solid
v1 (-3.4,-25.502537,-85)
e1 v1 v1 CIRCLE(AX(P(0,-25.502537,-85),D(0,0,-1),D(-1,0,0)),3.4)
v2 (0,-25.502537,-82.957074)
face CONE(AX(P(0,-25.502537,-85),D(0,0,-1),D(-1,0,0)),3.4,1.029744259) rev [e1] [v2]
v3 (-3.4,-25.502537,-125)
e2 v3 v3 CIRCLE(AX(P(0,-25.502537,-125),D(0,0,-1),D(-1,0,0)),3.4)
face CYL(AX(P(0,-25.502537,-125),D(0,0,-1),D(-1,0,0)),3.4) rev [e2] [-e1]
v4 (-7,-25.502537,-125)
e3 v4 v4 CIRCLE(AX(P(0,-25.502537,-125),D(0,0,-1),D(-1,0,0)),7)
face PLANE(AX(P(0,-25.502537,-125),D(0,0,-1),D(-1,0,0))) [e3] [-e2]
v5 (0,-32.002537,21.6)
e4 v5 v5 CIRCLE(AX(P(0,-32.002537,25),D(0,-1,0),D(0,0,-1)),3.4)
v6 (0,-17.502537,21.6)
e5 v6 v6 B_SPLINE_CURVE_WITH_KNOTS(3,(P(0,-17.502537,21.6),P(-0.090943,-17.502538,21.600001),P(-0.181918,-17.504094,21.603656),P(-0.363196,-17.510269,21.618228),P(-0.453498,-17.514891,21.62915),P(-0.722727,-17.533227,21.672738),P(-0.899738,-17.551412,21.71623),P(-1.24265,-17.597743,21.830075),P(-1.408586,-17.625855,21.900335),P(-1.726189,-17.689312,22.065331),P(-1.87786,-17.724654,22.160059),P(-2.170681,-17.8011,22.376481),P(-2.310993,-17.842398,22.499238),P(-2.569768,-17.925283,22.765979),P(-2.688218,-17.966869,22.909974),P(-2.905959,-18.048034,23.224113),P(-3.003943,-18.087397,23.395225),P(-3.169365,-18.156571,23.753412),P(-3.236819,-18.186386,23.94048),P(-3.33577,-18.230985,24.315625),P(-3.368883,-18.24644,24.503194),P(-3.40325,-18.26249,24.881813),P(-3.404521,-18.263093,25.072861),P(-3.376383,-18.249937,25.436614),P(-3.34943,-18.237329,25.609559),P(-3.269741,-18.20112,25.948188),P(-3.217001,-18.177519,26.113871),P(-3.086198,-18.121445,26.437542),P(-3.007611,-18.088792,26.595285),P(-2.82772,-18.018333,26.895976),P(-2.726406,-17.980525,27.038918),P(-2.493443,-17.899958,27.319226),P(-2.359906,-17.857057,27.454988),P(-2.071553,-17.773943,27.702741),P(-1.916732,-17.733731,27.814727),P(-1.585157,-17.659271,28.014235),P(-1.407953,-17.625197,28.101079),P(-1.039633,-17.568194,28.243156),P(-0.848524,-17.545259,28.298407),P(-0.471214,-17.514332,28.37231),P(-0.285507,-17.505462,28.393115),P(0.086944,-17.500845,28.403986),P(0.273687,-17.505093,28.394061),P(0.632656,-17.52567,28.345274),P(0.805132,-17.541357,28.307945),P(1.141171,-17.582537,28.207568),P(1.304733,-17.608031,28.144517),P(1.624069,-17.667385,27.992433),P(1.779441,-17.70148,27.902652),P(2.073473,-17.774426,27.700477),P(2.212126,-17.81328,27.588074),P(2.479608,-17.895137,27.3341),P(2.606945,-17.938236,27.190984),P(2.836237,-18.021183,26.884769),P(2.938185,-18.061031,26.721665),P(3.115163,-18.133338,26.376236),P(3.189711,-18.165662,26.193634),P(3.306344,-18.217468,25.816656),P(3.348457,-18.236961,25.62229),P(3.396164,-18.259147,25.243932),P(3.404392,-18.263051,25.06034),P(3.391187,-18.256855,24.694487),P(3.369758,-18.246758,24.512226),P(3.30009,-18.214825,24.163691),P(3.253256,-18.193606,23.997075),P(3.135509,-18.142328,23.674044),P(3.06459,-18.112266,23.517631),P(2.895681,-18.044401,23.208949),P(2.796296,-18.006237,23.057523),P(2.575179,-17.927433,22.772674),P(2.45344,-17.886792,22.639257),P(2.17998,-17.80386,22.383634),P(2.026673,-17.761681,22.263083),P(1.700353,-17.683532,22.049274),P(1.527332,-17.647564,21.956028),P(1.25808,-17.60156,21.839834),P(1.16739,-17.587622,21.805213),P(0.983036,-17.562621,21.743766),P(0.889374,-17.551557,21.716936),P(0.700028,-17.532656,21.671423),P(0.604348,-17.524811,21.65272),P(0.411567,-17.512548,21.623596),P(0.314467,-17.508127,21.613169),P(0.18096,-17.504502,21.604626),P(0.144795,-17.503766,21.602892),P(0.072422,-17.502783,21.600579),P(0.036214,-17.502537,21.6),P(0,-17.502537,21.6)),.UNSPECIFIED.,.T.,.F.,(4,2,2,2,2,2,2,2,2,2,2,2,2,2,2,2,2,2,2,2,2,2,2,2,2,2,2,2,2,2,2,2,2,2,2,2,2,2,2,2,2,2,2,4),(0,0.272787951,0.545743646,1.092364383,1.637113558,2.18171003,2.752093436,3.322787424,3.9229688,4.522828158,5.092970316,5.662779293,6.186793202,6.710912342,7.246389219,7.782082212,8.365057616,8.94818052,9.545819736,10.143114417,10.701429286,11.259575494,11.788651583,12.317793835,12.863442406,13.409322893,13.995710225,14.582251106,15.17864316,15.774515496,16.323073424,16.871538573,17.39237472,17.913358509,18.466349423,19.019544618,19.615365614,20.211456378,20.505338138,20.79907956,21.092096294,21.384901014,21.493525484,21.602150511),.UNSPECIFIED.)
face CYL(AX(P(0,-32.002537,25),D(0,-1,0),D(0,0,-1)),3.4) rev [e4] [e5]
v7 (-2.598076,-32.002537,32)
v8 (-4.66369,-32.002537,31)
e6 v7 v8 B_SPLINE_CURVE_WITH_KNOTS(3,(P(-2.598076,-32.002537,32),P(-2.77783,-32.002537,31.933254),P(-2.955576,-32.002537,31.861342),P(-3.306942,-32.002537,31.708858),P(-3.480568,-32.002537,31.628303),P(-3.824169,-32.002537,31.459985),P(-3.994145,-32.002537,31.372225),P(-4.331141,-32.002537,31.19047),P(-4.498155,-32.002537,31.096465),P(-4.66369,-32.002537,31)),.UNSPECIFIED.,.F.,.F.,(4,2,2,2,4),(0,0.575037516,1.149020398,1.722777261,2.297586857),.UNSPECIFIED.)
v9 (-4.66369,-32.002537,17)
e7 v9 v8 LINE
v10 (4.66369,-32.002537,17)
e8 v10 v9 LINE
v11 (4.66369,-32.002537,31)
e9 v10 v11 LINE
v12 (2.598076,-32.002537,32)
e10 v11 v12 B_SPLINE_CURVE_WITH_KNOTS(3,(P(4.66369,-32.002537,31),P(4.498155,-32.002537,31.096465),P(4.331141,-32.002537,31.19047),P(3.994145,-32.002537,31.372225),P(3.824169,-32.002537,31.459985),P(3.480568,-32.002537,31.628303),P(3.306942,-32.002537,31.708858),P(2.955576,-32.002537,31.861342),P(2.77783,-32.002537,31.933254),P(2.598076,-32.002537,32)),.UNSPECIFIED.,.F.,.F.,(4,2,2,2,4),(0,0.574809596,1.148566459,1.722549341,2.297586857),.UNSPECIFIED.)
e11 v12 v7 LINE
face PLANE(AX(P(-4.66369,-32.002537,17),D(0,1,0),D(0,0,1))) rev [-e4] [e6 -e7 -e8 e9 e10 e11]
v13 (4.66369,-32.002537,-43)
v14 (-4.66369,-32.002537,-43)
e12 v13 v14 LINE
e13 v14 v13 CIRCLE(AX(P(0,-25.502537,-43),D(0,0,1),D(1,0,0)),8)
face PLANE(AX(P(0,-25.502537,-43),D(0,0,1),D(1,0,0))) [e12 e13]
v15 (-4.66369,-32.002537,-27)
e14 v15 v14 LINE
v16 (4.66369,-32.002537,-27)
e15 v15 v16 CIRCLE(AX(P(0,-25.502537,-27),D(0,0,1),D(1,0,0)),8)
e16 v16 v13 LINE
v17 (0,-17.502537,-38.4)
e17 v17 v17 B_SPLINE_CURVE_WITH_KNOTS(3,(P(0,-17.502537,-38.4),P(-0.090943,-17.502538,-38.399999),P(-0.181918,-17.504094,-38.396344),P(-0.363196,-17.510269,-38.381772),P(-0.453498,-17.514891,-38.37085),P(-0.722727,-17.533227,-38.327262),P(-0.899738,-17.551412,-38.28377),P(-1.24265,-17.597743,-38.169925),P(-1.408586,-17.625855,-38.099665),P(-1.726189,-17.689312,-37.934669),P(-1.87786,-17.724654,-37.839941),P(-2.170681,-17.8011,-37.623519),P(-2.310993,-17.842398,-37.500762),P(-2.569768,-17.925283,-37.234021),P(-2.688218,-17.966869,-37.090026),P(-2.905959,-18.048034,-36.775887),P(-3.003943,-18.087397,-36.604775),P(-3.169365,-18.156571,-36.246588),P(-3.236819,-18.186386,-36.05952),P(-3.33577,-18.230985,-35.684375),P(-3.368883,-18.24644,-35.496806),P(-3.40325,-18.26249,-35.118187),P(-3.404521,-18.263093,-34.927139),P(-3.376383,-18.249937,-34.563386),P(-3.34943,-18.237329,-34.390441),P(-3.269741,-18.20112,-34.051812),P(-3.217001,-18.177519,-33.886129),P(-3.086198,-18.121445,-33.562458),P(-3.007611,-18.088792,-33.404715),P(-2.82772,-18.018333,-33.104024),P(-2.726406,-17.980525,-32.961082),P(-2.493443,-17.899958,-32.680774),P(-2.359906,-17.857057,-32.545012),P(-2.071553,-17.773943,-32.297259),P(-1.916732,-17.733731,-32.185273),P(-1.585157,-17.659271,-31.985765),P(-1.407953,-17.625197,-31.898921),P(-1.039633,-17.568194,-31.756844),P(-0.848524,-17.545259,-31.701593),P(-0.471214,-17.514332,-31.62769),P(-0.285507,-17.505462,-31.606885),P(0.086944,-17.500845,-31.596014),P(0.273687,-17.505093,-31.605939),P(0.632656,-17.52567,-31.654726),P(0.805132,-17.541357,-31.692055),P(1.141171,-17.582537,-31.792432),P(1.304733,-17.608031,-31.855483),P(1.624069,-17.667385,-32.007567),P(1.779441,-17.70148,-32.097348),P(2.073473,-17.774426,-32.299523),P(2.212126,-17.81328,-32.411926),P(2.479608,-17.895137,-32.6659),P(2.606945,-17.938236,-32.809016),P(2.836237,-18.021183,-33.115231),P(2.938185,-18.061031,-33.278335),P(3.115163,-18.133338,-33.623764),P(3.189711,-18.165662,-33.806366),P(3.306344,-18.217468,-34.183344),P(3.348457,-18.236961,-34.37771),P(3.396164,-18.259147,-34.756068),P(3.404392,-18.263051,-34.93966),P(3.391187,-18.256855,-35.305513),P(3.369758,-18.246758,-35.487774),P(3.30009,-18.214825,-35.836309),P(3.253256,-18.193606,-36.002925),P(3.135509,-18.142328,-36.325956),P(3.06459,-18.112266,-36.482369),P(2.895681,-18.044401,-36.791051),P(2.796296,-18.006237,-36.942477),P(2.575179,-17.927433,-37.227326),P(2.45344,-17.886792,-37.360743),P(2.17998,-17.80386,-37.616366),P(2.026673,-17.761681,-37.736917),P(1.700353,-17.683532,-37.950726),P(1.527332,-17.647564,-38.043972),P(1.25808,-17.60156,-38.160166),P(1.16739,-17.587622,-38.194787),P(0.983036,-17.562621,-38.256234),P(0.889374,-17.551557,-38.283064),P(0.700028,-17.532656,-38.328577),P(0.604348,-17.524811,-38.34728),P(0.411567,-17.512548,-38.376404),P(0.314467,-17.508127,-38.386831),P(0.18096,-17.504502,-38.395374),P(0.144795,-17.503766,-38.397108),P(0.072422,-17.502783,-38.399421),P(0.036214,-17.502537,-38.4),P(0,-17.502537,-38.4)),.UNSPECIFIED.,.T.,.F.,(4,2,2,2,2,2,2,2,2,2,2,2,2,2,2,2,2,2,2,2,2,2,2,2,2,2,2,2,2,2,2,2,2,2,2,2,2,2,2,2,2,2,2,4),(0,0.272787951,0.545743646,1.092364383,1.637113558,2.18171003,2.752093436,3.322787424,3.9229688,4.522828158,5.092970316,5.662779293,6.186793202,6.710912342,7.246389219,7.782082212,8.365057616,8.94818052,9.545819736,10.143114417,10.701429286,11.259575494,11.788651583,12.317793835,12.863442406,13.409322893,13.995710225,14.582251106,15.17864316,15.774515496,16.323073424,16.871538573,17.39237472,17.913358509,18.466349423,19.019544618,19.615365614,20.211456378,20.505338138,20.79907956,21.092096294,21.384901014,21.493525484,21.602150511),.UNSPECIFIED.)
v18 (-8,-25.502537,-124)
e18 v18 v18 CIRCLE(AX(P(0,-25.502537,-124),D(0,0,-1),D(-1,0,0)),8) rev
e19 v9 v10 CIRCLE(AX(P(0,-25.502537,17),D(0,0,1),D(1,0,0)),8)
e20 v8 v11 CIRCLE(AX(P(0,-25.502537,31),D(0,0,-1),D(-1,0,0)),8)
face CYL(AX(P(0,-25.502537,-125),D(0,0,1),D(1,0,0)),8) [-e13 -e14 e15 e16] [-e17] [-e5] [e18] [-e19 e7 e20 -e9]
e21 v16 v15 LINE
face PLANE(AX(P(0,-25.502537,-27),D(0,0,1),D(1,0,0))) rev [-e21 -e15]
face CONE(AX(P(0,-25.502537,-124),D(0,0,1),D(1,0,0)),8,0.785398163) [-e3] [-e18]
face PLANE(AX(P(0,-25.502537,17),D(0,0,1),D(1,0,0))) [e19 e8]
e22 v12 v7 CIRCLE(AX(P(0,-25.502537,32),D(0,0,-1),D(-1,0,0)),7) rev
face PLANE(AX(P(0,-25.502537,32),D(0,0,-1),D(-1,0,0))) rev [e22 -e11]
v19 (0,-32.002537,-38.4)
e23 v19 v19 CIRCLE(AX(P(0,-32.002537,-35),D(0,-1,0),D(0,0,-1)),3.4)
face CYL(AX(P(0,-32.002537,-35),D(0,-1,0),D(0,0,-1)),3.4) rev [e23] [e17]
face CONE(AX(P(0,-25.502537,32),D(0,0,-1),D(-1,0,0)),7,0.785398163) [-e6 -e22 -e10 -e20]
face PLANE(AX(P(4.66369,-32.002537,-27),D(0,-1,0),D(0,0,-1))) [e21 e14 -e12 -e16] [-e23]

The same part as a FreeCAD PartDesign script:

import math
import FreeCAD as App
import Part
import Sketcher
Q = App.Units.Quantity


def edges_at(feature, points):
    """Names of the edges that pass closest to the given points."""
    edges = feature.Shape.Edges
    near = lambda p: min(range(len(edges)), key=lambda i: edges[i].distToShape(Part.Vertex(*p))[0])
    return sorted({f"Edge{near(p) + 1}" for p in points})

doc = App.newDocument("Part")
body = doc.addObject("PartDesign::Body", "Body")

sketch1 = doc.addObject("Sketcher::SketchObject", "Sketch")
body.addObject(sketch1)
sketch1.AttachmentSupport = (doc.XY_Plane, [""])
sketch1.MapMode = "FlatFace"
sketch1.addGeometry([
    Part.ArcOfCircle(Part.Circle(App.Vector(0, -25.502537, 0), App.Vector(0, 0, 1), 8), math.radians(-30), math.radians(210)),
    Part.ArcOfCircle(Part.Circle(App.Vector(0, -25.502537, 0), App.Vector(0, 0, 1), 8), math.radians(-150), math.radians(-30)),
], False)
sketch1.addConstraint([
    Sketcher.Constraint("Tangent", 0, 1, 1, 2),
    Sketcher.Constraint("Coincident", 1, 1, 0, 2),
    Sketcher.Constraint("Symmetric", 0, 1, 1, 1, -2),
    Sketcher.Constraint("Radius", 0, Q("8 mm")),
    Sketcher.Constraint("DistanceY", 0, 1, 0, 3, Q("4 mm")),
    Sketcher.Constraint("DistanceY", 0, 3, -1, 1, Q("25.502537 mm")),
])
pad1 = doc.addObject("PartDesign::Pad", "Pad")
body.addObject(pad1)
pad1.Profile = sketch1
pad1.Type = "TwoLengths"
pad1.Length = 32
pad1.Length2 = 125

sketch2 = doc.addObject("Sketcher::SketchObject", "Sketch001")
body.addObject(sketch2)
sketch2.AttachmentSupport = (doc.XY_Plane, [""])
sketch2.MapMode = "FlatFace"
sketch2.AttachmentOffset = App.Placement(App.Vector(0, 0, 32), App.Rotation())
sketch2.addGeometry([
    Part.LineSegment(App.Vector(4.66369, -32.002537, 0), App.Vector(-4.66369, -32.002537, 0)),
    Part.ArcOfCircle(Part.Circle(App.Vector(0, -25.502537, 0), App.Vector(0, 0, 1), 8), math.radians(-125.659088), math.radians(-54.340912)),
], False)
sketch2.addConstraint([
    Sketcher.Constraint("Coincident", 0, 1, 1, 2),
    Sketcher.Constraint("Coincident", 1, 1, 0, 2),
    Sketcher.Constraint("Horizontal", 0),
    Sketcher.Constraint("PointOnObject", 1, 3, -2),
    Sketcher.Constraint("Radius", 1, Q("8 mm")),
    Sketcher.Constraint("DistanceY", 0, 1, 1, 3, Q("6.5 mm")),
    Sketcher.Constraint("DistanceY", 1, 3, -1, 1, Q("25.502537 mm")),
])
pocket1 = doc.addObject("PartDesign::Pocket", "Pocket")
body.addObject(pocket1)
pocket1.Profile = sketch2
pocket1.Length = 15

sketch3 = doc.addObject("Sketcher::SketchObject", "Sketch002")
body.addObject(sketch3)
sketch3.AttachmentSupport = (doc.XY_Plane, [""])
sketch3.MapMode = "FlatFace"
sketch3.AttachmentOffset = App.Placement(App.Vector(0, 0, -43), App.Rotation())
sketch3.addGeometry([
    Part.LineSegment(App.Vector(4.66369, -32.002537, 0), App.Vector(-4.66369, -32.002537, 0)),
    Part.ArcOfCircle(Part.Circle(App.Vector(0, -25.502537, 0), App.Vector(0, 0, 1), 8), math.radians(-125.659088), math.radians(-54.340912)),
], False)
sketch3.addConstraint([
    Sketcher.Constraint("Coincident", 0, 1, 1, 2),
    Sketcher.Constraint("Coincident", 1, 1, 0, 2),
    Sketcher.Constraint("Horizontal", 0),
    Sketcher.Constraint("PointOnObject", 1, 3, -2),
    Sketcher.Constraint("Radius", 1, Q("8 mm")),
    Sketcher.Constraint("DistanceY", 0, 1, 1, 3, Q("6.5 mm")),
    Sketcher.Constraint("DistanceY", 1, 3, -1, 1, Q("25.502537 mm")),
])
pocket2 = doc.addObject("PartDesign::Pocket", "Pocket001")
body.addObject(pocket2)
pocket2.Profile = sketch3
pocket2.Length = 16
pocket2.Reversed = True

sketch4 = doc.addObject("Sketcher::SketchObject", "Sketch003")
body.addObject(sketch4)
sketch4.AttachmentSupport = (doc.XY_Plane, [""])
sketch4.MapMode = "FlatFace"
sketch4.AttachmentOffset = App.Placement(App.Vector(0, 0, -125), App.Rotation())
sketch4.addGeometry(Part.Circle(App.Vector(0, -25.502537, 0), App.Vector(0, 0, 1), 3.4), False)
sketch4.addConstraint([
    Sketcher.Constraint("PointOnObject", 0, 3, -2),
    Sketcher.Constraint("Diameter", 0, Q("6.8 mm")),
    Sketcher.Constraint("DistanceY", 0, 3, -1, 1, Q("25.502537 mm")),
])
doc.recompute()
hole = doc.addObject("PartDesign::Hole", "Hole")
body.addObject(hole)
hole.Profile = sketch4
hole.ThreadType = "None"
hole.Diameter = 6.8
hole.DepthType = "Dimension"
hole.Depth = 40
hole.DrillPoint = "Angled"
hole.DrillPointAngle = 118
hole.Reversed = True
doc.recompute()

chamfer = doc.addObject("PartDesign::Chamfer", "Chamfer")
body.addObject(chamfer)
chamfer.Base = (hole, edges_at(hole, [(0, -17.503, -125)]))
chamfer.Size = 1
doc.recompute()

chamfer2 = doc.addObject("PartDesign::Chamfer", "Chamfer001")
body.addObject(chamfer2)
chamfer2.Base = (chamfer, edges_at(chamfer, [(0, -17.503, 32)]))
chamfer2.Size = 1

sketch5 = doc.addObject("Sketcher::SketchObject", "Sketch004")
body.addObject(sketch5)
sketch5.AttachmentSupport = (doc.XZ_Plane, [""])
sketch5.MapMode = "FlatFace"
sketch5.AttachmentOffset = App.Placement(App.Vector(0, 0, 32.002537), App.Rotation())
sketch5.addGeometry([
    Part.Circle(App.Vector(0, 25, 0), App.Vector(0, 0, 1), 3.4),
    Part.Circle(App.Vector(0, -35, 0), App.Vector(0, 0, 1), 3.4),
], False)
sketch5.addConstraint([
    Sketcher.Constraint("Equal", 0, 1),
    Sketcher.Constraint("PointOnObject", 0, 3, -2),
    Sketcher.Constraint("PointOnObject", 1, 3, -2),
    Sketcher.Constraint("Diameter", 0, Q("6.8 mm")),
    Sketcher.Constraint("DistanceY", -1, 1, 0, 3, Q("25 mm")),
    Sketcher.Constraint("DistanceY", 1, 3, -1, 1, Q("35 mm")),
])
doc.recompute()
hole2 = doc.addObject("PartDesign::Hole", "Hole001")
body.addObject(hole2)
hole2.Profile = sketch5
hole2.ThreadType = "None"
hole2.Diameter = 6.8
hole2.DepthType = "ThroughAll"

doc.recompute()
